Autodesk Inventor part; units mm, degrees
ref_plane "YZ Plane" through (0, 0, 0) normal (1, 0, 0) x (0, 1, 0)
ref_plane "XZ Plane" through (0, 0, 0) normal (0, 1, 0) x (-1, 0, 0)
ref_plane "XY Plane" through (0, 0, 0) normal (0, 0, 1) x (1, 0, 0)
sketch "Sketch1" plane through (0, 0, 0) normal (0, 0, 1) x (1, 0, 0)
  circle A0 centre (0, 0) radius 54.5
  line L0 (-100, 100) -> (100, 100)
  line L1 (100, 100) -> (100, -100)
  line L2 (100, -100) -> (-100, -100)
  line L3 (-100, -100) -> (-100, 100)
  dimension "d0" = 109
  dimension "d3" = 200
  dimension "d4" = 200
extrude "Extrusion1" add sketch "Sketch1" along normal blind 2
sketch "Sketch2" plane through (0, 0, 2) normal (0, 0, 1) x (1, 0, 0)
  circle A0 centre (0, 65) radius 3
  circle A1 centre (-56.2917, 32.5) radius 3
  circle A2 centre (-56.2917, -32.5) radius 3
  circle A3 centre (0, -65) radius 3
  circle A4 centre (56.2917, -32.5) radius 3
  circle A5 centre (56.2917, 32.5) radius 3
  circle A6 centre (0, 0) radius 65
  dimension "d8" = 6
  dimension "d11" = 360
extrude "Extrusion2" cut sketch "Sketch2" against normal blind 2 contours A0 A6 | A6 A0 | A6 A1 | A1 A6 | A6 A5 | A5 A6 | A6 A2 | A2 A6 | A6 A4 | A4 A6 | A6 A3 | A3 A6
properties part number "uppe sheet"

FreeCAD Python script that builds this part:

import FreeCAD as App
import Part
import Sketcher
from FreeCAD import Vector
Q = App.Units.Quantity

doc = App.newDocument("Part")
params = doc.addObject("Spreadsheet::Sheet", "Params")
for row, (alias, value) in enumerate([
    ("sketch1_diameter", "109 mm"),
    ("sketch1_width", "200 mm"),
    ("pad1_length", "2 mm"),
    ("sketch2_diameter", "6 mm"),
    ("pocket1_length", "2 mm"),
], start=1):
    params.set(f"A{row}", alias)
    params.set(f"B{row}", "=" + value)
    params.setAlias(f"B{row}", alias)

body = doc.addObject("PartDesign::Body", "Body")

# Sketch on XY plane
sketch1 = doc.addObject("Sketcher::SketchObject", "Sketch")
body.addObject(sketch1)
sketch1.AttachmentSupport = (doc.XY_Plane, [""])
sketch1.MapMode = "FlatFace"
sketch1.addGeometry(Part.LineSegment(Vector(100, 100, 0), Vector(-100, 100, 0)), False)
sketch1.addGeometry(Part.LineSegment(Vector(-100, 100, 0), Vector(-100, -100, 0)), False)
sketch1.addGeometry(Part.LineSegment(Vector(-100, -100, 0), Vector(100, -100, 0)), False)
sketch1.addGeometry(Part.LineSegment(Vector(100, -100, 0), Vector(100, 100, 0)), False)
sketch1.addGeometry(Part.Circle(Vector(0, 0, 0), Vector(0, 0, 1), 54), False)
sketch1.addConstraint(Sketcher.Constraint("Coincident", 0, 2, 1, 1))
sketch1.addConstraint(Sketcher.Constraint("Coincident", 1, 2, 2, 1))
sketch1.addConstraint(Sketcher.Constraint("Coincident", 2, 2, 3, 1))
sketch1.addConstraint(Sketcher.Constraint("Coincident", 3, 2, 0, 1))
sketch1.addConstraint(Sketcher.Constraint("Horizontal", 0))
sketch1.addConstraint(Sketcher.Constraint("Vertical", 1))
sketch1.addConstraint(Sketcher.Constraint("Horizontal", 2))
sketch1.addConstraint(Sketcher.Constraint("Vertical", 3))
sketch1.addConstraint(Sketcher.Constraint("Coincident", 4, 3, -1, 1))
sketch1.addConstraint(Sketcher.Constraint("Symmetric", 0, 2, 2, 2, -1, 1))
sketch1.addConstraint(Sketcher.Constraint("Equal", 2, 1))
sketch1.addConstraint(Sketcher.Constraint("Diameter", 4, Q("109 mm")))
sketch1.addConstraint(Sketcher.Constraint("DistanceX", 0, 2, 0, 1, Q("200 mm")))
sketch1.setExpression("Constraints[11]", "Params.sketch1_diameter")
sketch1.setExpression("Constraints[12]", "Params.sketch1_width")
pad1 = doc.addObject("PartDesign::Pad", "Pad")
body.addObject(pad1)
pad1.Profile = sketch1
pad1.setExpression("Length", "Params.pad1_length")

# Sketch on XY plane
sketch2 = doc.addObject("Sketcher::SketchObject", "Sketch001")
body.addObject(sketch2)
sketch2.AttachmentSupport = (doc.XY_Plane, [""])
sketch2.MapMode = "FlatFace"
sketch2.AttachmentOffset = App.Placement(Vector(0, 0, 2), App.Rotation())
sketch2.addGeometry(Part.Circle(Vector(0, 65, 0), Vector(0, 0, 1), 3), False)
sketch2.addGeometry(Part.Circle(Vector(-56.3, 32.5, 0), Vector(0, 0, 1), 3), False)
sketch2.addGeometry(Part.Circle(Vector(56.3, 32.5, 0), Vector(0, 0, 1), 3), False)
sketch2.addGeometry(Part.Circle(Vector(-56.3, -32.5, 0), Vector(0, 0, 1), 3), False)
sketch2.addGeometry(Part.Circle(Vector(56.3, -32.5, 0), Vector(0, 0, 1), 3), False)
sketch2.addGeometry(Part.Circle(Vector(0, -65, 0), Vector(0, 0, 1), 3), False)
sketch2.addConstraint(Sketcher.Constraint("Equal", 0, 1))
sketch2.addConstraint(Sketcher.Constraint("Equal", 1, 2))
sketch2.addConstraint(Sketcher.Constraint("Equal", 2, 3))
sketch2.addConstraint(Sketcher.Constraint("Equal", 3, 4))
sketch2.addConstraint(Sketcher.Constraint("Equal", 4, 5))
sketch2.addConstraint(Sketcher.Constraint("Symmetric", 2, 3, 3, 3, -1, 1))
sketch2.addConstraint(Sketcher.Constraint("Symmetric", 1, 3, 4, 3, -1, 1))
sketch2.addConstraint(Sketcher.Constraint("Symmetric", 0, 3, 5, 3, -1, 1))
sketch2.addConstraint(Sketcher.Constraint("Symmetric", 1, 3, 2, 3, -2))
sketch2.addConstraint(Sketcher.Constraint("PointOnObject", 0, 3, -2))
sketch2.addConstraint(Sketcher.Constraint("Diameter", 0, Q("6 mm")))
sketch2.addConstraint(Sketcher.Constraint("DistanceY", -1, 1, 0, 3, Q("65 mm")))
sketch2.addConstraint(Sketcher.Constraint("DistanceY", 3, 3, 1, 3, Q("65 mm")))
sketch2.addConstraint(Sketcher.Constraint("DistanceX", 1, 3, -1, 1, Q("56.2917 mm")))
sketch2.setExpression("Constraints[10]", "Params.sketch2_diameter")
pocket1 = doc.addObject("PartDesign::Pocket", "Pocket")
body.addObject(pocket1)
pocket1.Profile = sketch2
pocket1.setExpression("Length", "Params.pocket1_length")

doc.recompute()
